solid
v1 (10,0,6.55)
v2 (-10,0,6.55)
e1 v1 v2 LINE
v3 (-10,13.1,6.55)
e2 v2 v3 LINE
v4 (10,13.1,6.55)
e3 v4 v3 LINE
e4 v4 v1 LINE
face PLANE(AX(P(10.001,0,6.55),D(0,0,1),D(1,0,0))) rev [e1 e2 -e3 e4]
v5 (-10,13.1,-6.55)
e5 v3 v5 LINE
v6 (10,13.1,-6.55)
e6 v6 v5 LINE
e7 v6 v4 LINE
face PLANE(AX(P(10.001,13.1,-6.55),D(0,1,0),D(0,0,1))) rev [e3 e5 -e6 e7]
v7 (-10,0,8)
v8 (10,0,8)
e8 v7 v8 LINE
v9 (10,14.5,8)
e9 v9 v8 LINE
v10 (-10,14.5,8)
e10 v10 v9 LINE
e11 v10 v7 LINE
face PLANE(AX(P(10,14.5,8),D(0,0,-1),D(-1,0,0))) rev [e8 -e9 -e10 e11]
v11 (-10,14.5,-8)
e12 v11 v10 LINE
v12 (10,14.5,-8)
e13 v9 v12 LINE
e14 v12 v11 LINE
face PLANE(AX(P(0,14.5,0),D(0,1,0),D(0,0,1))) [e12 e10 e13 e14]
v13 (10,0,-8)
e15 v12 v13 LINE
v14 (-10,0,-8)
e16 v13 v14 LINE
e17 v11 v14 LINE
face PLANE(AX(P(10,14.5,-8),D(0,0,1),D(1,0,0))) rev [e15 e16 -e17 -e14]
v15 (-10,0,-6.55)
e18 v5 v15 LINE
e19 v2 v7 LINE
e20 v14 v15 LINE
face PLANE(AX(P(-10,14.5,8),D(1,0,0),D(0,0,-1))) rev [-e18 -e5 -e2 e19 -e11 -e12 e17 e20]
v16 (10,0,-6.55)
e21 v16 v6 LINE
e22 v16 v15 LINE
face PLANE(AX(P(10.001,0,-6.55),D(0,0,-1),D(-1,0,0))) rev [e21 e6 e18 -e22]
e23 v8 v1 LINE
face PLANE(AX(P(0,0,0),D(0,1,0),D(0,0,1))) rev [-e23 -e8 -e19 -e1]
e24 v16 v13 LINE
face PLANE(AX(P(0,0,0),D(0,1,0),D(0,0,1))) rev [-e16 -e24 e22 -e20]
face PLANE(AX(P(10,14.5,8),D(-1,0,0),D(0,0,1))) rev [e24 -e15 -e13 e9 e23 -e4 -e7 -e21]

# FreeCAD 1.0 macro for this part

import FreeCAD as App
import Part
import Sketcher

doc = App.newDocument("Part")
body = doc.addObject("PartDesign::Body", "Body")

# Sketch on XZ plane
sketch1 = body.newObject("Sketcher::SketchObject", "Sketch")
sketch1.AttachmentSupport = (doc.getObject("XZ_Plane"), [""])
sketch1.MapMode = "FlatFace"
sketch1.addGeometry(Part.LineSegment(App.Vector(-10, -8, 0), App.Vector(-10, 8, 0)), False)
sketch1.addGeometry(Part.LineSegment(App.Vector(-10, 8, 0), App.Vector(10, 8, 0)), False)
sketch1.addGeometry(Part.LineSegment(App.Vector(10, 8, 0), App.Vector(10, -8, 0)), False)
sketch1.addGeometry(Part.LineSegment(App.Vector(10, -8, 0), App.Vector(-10, -8, 0)), False)
sketch1.addConstraint(Sketcher.Constraint("Coincident", 0, 2, 1, 1))
sketch1.addConstraint(Sketcher.Constraint("Coincident", 1, 2, 2, 1))
sketch1.addConstraint(Sketcher.Constraint("Coincident", 2, 2, 3, 1))
sketch1.addConstraint(Sketcher.Constraint("Coincident", 3, 2, 0, 1))
sketch1.addConstraint(Sketcher.Constraint("Vertical", 0))
sketch1.addConstraint(Sketcher.Constraint("Horizontal", 1))
sketch1.addConstraint(Sketcher.Constraint("Vertical", 2))
sketch1.addConstraint(Sketcher.Constraint("Horizontal", 3))
sketch1.addConstraint(Sketcher.Constraint("Symmetric", 0, 2, 2, 2, -1, 1))
sketch1.addConstraint(Sketcher.Constraint("DistanceX", 1, 1, 1, 2, 20.0))
sketch1.addConstraint(Sketcher.Constraint("DistanceY", 0, 1, 0, 2, 16.0))
pad1 = body.newObject("PartDesign::Pad", "Pad")
pad1.Profile = sketch1
pad1.Length = 14.5
pad1.Reversed = True

# Sketch on YZ plane
sketch2 = body.newObject("Sketcher::SketchObject", "Sketch001")
sketch2.AttachmentSupport = (doc.getObject("YZ_Plane"), [""])
sketch2.MapMode = "FlatFace"
sketch2.AttachmentOffset = App.Placement(App.Vector(0, 0, -10), App.Rotation())
sketch2.addGeometry(Part.LineSegment(App.Vector(13, -7, 0), App.Vector(0, -7, 0)), False)
sketch2.addGeometry(Part.LineSegment(App.Vector(0, -7, 0), App.Vector(0, 7, 0)), False)
sketch2.addGeometry(Part.LineSegment(App.Vector(0, 7, 0), App.Vector(13, 7, 0)), False)
sketch2.addGeometry(Part.LineSegment(App.Vector(13, 7, 0), App.Vector(13, -7, 0)), False)
sketch2.addConstraint(Sketcher.Constraint("Coincident", 0, 2, 1, 1))
sketch2.addConstraint(Sketcher.Constraint("Coincident", 1, 2, 2, 1))
sketch2.addConstraint(Sketcher.Constraint("Coincident", 2, 2, 3, 1))
sketch2.addConstraint(Sketcher.Constraint("Coincident", 3, 2, 0, 1))
sketch2.addConstraint(Sketcher.Constraint("Horizontal", 0))
sketch2.addConstraint(Sketcher.Constraint("Vertical", 1))
sketch2.addConstraint(Sketcher.Constraint("Horizontal", 2))
sketch2.addConstraint(Sketcher.Constraint("Vertical", 3))
sketch2.addConstraint(Sketcher.Constraint("Symmetric", 0, 2, 1, 2, -1, 1))
sketch2.addConstraint(Sketcher.Constraint("Equal", 2, 1))
sketch2.addConstraint(Sketcher.Constraint("DistanceX", 0, 2, 0, 1, 13.1))
pocket1 = body.newObject("PartDesign::Pocket", "Pocket")
pocket1.Profile = sketch2
pocket1.Type = "UpToFirst"
pocket1.Reversed = True

doc.recompute()
